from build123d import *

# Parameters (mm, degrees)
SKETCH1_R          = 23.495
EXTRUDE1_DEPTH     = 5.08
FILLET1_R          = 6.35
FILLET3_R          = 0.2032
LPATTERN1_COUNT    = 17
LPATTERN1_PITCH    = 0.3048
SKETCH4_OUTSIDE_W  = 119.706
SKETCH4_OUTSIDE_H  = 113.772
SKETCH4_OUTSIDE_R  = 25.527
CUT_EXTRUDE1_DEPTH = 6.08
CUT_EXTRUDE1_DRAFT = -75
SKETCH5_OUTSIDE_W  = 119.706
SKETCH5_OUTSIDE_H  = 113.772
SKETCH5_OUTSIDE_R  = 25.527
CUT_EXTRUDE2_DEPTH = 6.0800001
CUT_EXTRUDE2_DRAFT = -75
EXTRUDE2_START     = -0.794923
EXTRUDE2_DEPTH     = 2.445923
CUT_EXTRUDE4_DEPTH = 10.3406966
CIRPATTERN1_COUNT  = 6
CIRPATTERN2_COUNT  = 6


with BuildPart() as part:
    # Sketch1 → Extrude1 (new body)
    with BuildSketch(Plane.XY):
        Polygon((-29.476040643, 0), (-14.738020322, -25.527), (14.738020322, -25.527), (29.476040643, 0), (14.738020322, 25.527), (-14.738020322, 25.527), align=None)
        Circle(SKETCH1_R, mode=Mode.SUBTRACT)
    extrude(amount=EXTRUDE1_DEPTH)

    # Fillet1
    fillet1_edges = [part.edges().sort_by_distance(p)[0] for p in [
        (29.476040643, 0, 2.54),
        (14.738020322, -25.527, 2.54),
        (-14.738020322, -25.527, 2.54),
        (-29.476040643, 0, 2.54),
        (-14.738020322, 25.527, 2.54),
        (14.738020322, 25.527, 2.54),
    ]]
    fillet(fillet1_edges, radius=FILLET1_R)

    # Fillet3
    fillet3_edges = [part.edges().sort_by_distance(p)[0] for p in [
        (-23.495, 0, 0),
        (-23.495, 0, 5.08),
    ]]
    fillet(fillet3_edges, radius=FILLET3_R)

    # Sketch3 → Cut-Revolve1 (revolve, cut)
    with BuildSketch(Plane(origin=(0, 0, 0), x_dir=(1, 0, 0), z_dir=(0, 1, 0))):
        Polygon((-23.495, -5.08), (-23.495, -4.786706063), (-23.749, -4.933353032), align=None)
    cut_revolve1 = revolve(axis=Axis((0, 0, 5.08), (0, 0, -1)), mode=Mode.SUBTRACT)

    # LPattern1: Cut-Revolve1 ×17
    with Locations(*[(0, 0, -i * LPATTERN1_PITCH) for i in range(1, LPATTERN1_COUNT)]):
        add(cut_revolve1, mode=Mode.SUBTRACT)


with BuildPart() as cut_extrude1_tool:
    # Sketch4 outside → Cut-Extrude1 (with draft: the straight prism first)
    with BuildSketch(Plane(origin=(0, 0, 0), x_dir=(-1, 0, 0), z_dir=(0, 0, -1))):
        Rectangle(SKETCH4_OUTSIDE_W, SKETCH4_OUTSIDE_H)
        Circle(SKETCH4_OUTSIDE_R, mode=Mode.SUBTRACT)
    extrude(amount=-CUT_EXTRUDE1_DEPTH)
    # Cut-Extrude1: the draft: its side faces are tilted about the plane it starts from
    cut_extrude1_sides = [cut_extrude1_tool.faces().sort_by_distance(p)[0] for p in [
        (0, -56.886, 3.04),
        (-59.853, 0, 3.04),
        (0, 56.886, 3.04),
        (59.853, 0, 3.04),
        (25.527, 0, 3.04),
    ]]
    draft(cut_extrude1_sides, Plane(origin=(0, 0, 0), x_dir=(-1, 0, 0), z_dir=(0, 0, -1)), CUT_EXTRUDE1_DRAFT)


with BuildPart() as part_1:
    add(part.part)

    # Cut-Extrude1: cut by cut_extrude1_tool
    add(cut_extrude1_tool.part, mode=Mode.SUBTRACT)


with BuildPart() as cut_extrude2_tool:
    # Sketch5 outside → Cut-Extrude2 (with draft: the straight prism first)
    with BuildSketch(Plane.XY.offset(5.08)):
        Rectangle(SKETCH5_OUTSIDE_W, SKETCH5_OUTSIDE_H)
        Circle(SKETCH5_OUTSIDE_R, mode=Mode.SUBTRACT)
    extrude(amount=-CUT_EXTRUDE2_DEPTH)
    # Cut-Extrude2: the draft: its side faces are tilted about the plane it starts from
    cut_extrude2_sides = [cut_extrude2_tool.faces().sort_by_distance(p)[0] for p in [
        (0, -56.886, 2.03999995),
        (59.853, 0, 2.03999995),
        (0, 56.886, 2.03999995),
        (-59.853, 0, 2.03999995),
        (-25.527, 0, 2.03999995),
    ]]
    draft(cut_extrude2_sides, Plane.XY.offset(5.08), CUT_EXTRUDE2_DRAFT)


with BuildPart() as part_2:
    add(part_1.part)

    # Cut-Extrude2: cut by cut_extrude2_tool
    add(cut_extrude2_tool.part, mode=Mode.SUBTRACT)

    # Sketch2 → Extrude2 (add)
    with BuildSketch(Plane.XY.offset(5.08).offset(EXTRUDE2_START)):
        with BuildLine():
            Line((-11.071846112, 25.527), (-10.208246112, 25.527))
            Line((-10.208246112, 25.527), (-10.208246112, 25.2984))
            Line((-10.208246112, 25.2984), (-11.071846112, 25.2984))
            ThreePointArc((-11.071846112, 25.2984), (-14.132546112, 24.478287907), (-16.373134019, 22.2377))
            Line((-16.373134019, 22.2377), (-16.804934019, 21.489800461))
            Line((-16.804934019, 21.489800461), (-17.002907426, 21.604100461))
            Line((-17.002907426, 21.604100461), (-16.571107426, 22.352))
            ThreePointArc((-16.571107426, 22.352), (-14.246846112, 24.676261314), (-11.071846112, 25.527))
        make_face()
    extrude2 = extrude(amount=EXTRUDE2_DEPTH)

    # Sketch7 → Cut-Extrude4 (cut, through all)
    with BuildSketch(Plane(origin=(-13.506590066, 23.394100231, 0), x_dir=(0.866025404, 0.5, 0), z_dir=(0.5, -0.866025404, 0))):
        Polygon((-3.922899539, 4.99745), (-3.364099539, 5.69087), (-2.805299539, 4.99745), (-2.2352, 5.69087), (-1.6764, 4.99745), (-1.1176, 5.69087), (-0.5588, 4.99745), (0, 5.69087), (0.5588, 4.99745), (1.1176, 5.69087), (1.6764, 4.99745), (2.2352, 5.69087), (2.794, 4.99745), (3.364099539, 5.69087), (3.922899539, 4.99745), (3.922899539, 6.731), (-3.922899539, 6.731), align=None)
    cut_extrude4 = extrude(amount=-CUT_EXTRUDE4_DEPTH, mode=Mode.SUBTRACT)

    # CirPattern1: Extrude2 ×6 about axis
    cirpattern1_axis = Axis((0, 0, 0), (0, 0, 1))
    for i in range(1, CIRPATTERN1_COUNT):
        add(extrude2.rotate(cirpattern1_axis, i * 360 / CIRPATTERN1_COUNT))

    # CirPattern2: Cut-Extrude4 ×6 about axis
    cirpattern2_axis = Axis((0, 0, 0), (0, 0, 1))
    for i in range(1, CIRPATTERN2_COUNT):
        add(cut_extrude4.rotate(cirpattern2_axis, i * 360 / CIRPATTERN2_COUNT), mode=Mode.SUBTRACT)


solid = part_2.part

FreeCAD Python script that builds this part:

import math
import FreeCAD as App
import Part
import Sketcher

V = App.Vector
Q = App.Units.Quantity


def edges_at(feature, points):
    """Names of the edges that pass closest to the given points."""
    edges = feature.Shape.Edges
    near = lambda p: min(range(len(edges)), key=lambda i: edges[i].distToShape(Part.Vertex(*p))[0])
    return sorted({f"Edge{near(p) + 1}" for p in points})


def faces_at(feature, points):
    """Names of the faces that lie closest to the given points."""
    faces = feature.Shape.Faces
    near = lambda p: min(range(len(faces)), key=lambda i: faces[i].distToShape(Part.Vertex(*p))[0])
    return sorted({f"Face{near(p) + 1}" for p in points})


def add_polygon(sketch, points):
    """Adds a closed chain of lines whose ends are joined by coincident constraints."""
    first, n = sketch.GeometryCount, len(points)
    for a, b in zip(points, points[1:] + points[:1]):
        sketch.addGeometry(Part.LineSegment(App.Vector(*a, 0), App.Vector(*b, 0)), False)
    for i in range(n):
        sketch.addConstraint(Sketcher.Constraint("Coincident", first + i, 2, first + (i + 1) % n, 1))

doc = App.newDocument("Part")
params = doc.addObject("Spreadsheet::Sheet", "Params")
for row, (alias, value) in enumerate([
    ("sketch1_diameter", "1.85 in"),
    ("pad1_length", "0.2 in"),
    ("fillet_radius", "0.25 in"),
    ("fillet2_radius", "0.008 in"),
    ("groove_angle", "360 deg"),
    ("linearpattern_pitch", "0.012 in"),
    ("sketch3_diameter", "2.01 in"),
    ("pad2_length", "6.08 mm"),
    ("draft_angle", "75 deg"),
    ("sketch4_diameter", "2.01 in"),
    ("pad3_length", "6.08 mm"),
    ("draft2_angle", "75 deg"),
    ("sketch5_radius", "0.25 in"),
    ("sketch5_radius2", "0.241 in"),
    ("sketch5_width", "0.034 in"),
    ("sketch5_length", "0.034 in"),
    ("pad4_length", "2.445923 mm"),
], start=1):
    params.set(f"A{row}", alias)
    params.set(f"B{row}", "=" + value)
    params.setAlias(f"B{row}", alias)

body = doc.addObject("PartDesign::Body", "Body")

# Sketch on XY plane
sketch1 = body.newObject("Sketcher::SketchObject", "Sketch")
sketch1.AttachmentSupport = (doc.getObject("XY_Plane"), [""])
sketch1.MapMode = "FlatFace"
add_polygon(sketch1, [(-29.476041, 0), (-14.73802, -25.527), (14.73802, -25.527), (29.476041, 0), (14.73802, 25.527), (-14.73802, 25.527)])  # lines 0-5
sketch1.addGeometry(Part.Circle(V(0, 0, 0), V(0, 0, 1), 23.495), False)  # 6
sketch1.addConstraint([
    Sketcher.Constraint("Horizontal", 1),
    Sketcher.Constraint("Horizontal", 4),
    Sketcher.Constraint("Coincident", 6, 3, -1, 1),
    Sketcher.Constraint("Symmetric", 0, 2, 3, 2, -1, 1),
    Sketcher.Constraint("Symmetric", 2, 2, 5, 2, -1, 1),
    Sketcher.Constraint("PointOnObject", 2, 2, -1),
    Sketcher.Constraint("Parallel", 2, 5),
    Sketcher.Constraint("Vertical", 1, 2, 3, 2),
    Sketcher.Constraint("Diameter", 6, Q("1.85 in")),
    Sketcher.Constraint("Angle", 0, Q("-60 deg")),
    Sketcher.Constraint("DistanceY", 1, 2, 3, 2, Q("2.01 in")),
    Sketcher.Constraint("DistanceX", 1, 1, 1, 2, Q("29.476041 mm")),
])
sketch1.setExpression("Constraints[14]", "Params.sketch1_diameter")
pad1 = body.newObject("PartDesign::Pad", "Pad")
pad1.Profile = sketch1
pad1.setExpression("Length", "Params.pad1_length")
doc.recompute()

fillet = body.newObject("PartDesign::Fillet", "Fillet")
fillet.Base = (pad1, edges_at(pad1, [
    (29.476, 0, 2.54),
    (14.738, -25.527, 2.54),
    (-14.738, -25.527, 2.54),
    (-29.476, 0, 2.54),
    (-14.738, 25.527, 2.54),
    (14.738, 25.527, 2.54),
]))
fillet.setExpression("Radius", "Params.fillet_radius")
doc.recompute()

fillet2 = body.newObject("PartDesign::Fillet", "Fillet001")
fillet2.Base = (fillet, edges_at(fillet, [(-23.495, 0, 0), (-23.495, 0, 5.08)]))
fillet2.setExpression("Radius", "Params.fillet2_radius")

# Sketch on XZ plane
sketch2 = body.newObject("Sketcher::SketchObject", "Sketch001")
sketch2.AttachmentSupport = (doc.getObject("XZ_Plane"), [""])
sketch2.MapMode = "FlatFace"
add_polygon(sketch2, [(-23.495, 5.08), (-23.495, 4.786706), (-23.749, 4.933353)])  # lines 0-2
sketch2.addConstraint([
    Sketcher.Constraint("Vertical", 0),
    Sketcher.Constraint("Equal", 1, 2),
    Sketcher.Constraint("Angle", 1, Q("150 deg")),
    Sketcher.Constraint("DistanceY", -1, 1, 2, 2, Q("0.2 in")),
    Sketcher.Constraint("DistanceX", 1, 2, 0, 2, Q("0.01 in")),
    Sketcher.Constraint("DistanceX", 0, 2, -1, 1, Q("0.925 in")),
])
groove = body.newObject("PartDesign::Groove", "Groove")
groove.Profile = sketch2
groove.ReferenceAxis = (sketch2, ["V_Axis"])
groove.setExpression("Angle", "Params.groove_angle")
doc.recompute()

linearpattern = body.newObject("PartDesign::LinearPattern", "LinearPattern")
linearpattern.Originals = [groove]
linearpattern.Direction = (doc.getObject("Z_Axis"), [""])
linearpattern.Mode = "offset"
linearpattern.setExpression("Offset", "Params.linearpattern_pitch")
linearpattern.Occurrences = 17
linearpattern.Reversed = True
body.Tip = linearpattern
body2 = doc.addObject("PartDesign::Body", "Body001")

# Sketch on XY plane
sketch3 = body2.newObject("Sketcher::SketchObject", "Sketch002")
sketch3.AttachmentSupport = (doc.getObject("XY_Plane001"), [""])
sketch3.MapMode = "FlatFace"
add_polygon(sketch3, [(59.853, 56.886), (59.853, -56.886), (-59.853, -56.886), (-59.853, 56.886)])  # lines 0-3
sketch3.addGeometry(Part.Circle(V(0, 0, 0), V(0, 0, 1), 25.527), False)  # 4
sketch3.addConstraint([
    Sketcher.Constraint("Vertical", 0),
    Sketcher.Constraint("Horizontal", 1),
    Sketcher.Constraint("Vertical", 2),
    Sketcher.Constraint("Horizontal", 3),
    Sketcher.Constraint("Coincident", 4, 3, -1, 1),
    Sketcher.Constraint("Symmetric", 0, 2, 2, 2, -1, 1),
    Sketcher.Constraint("Diameter", 4, Q("2.01 in")),
    Sketcher.Constraint("DistanceX", 1, 2, 1, 1, Q("119.706 mm")),
    Sketcher.Constraint("DistanceY", 0, 2, 0, 1, Q("113.772 mm")),
])
sketch3.setExpression("Constraints[10]", "Params.sketch3_diameter")
pad2 = body2.newObject("PartDesign::Pad", "Pad001")
pad2.Profile = sketch3
pad2.setExpression("Length", "Params.pad2_length")
doc.recompute()

draft = body2.newObject("PartDesign::Draft", "Draft")
draft.Base = (pad2, faces_at(pad2, [
    (0, -56.886, 3.04),
    (-59.853, 0, 3.04),
    (0, 56.886, 3.04),
    (59.853, 0, 3.04),
    (25.527, 0, 3.04),
]))
draft.NeutralPlane = (doc.getObject("XY_Plane001"), [""])
draft.setExpression("Angle", "Params.draft_angle")
draft.Reversed = False
doc.recompute()

boolean = body.newObject("PartDesign::Boolean", "Boolean")
boolean.Type = "Cut"
boolean.addObjects([body2])
body3 = doc.addObject("PartDesign::Body", "Body002")

# Sketch on XY plane
sketch4 = body3.newObject("Sketcher::SketchObject", "Sketch003")
sketch4.AttachmentSupport = (doc.getObject("XY_Plane002"), [""])
sketch4.MapMode = "FlatFace"
sketch4.AttachmentOffset = App.Placement(V(0, 0, 0.2 * 25.4), App.Rotation())
add_polygon(sketch4, [(-59.853, 56.886), (-59.853, -56.886), (59.853, -56.886), (59.853, 56.886)])  # lines 0-3
sketch4.addGeometry(Part.Circle(V(0, 0, 0), V(0, 0, 1), 25.527), False)  # 4
sketch4.addConstraint([
    Sketcher.Constraint("Vertical", 0),
    Sketcher.Constraint("Horizontal", 1),
    Sketcher.Constraint("Vertical", 2),
    Sketcher.Constraint("Horizontal", 3),
    Sketcher.Constraint("Coincident", 4, 3, -1, 1),
    Sketcher.Constraint("Symmetric", 0, 2, 2, 2, -1, 1),
    Sketcher.Constraint("Diameter", 4, Q("2.01 in")),
    Sketcher.Constraint("DistanceX", 1, 1, 1, 2, Q("119.706 mm")),
    Sketcher.Constraint("DistanceY", 0, 2, 0, 1, Q("113.772 mm")),
])
sketch4.setExpression("Constraints[10]", "Params.sketch4_diameter")
pad3 = body3.newObject("PartDesign::Pad", "Pad002")
pad3.Profile = sketch4
pad3.setExpression("Length", "Params.pad3_length")
pad3.Reversed = True
doc.recompute()

datumplane = body3.newObject("PartDesign::Plane", "DatumPlane")
datumplane.AttachmentSupport = (doc.getObject("XY_Plane002"), [""])
datumplane.MapMode = "FlatFace"
datumplane.AttachmentOffset = App.Placement(V(0, 0, 0.2 * 25.4), App.Rotation())
draft2 = body3.newObject("PartDesign::Draft", "Draft001")
draft2.Base = (pad3, faces_at(pad3, [
    (0, -56.886, 2.04),
    (59.853, 0, 2.04),
    (0, 56.886, 2.04),
    (-59.853, 0, 2.04),
    (-25.527, 0, 2.04),
]))
draft2.NeutralPlane = (datumplane, [""])
draft2.setExpression("Angle", "Params.draft2_angle")
draft2.Reversed = True
doc.recompute()

boolean2 = body.newObject("PartDesign::Boolean", "Boolean001")
boolean2.Type = "Cut"
boolean2.addObjects([body3])

# Sketch on XY plane
sketch5 = body.newObject("Sketcher::SketchObject", "Sketch004")
sketch5.AttachmentSupport = (doc.getObject("XY_Plane"), [""])
sketch5.MapMode = "FlatFace"
sketch5.AttachmentOffset = App.Placement(V(0, 0, 4.285077), App.Rotation())
sketch5.addGeometry([
    Part.LineSegment(V(-10.208246, 25.527, 0), V(-11.071846, 25.527, 0)),  # 0
    Part.ArcOfCircle(Part.Circle(V(-11.071846, 19.177, 0), V(0, 0, 1), 6.35), math.radians(90), math.radians(150)),  # 1
    Part.LineSegment(V(-16.571107, 22.352, 0), V(-17.002907, 21.6041, 0)),  # 2
    Part.LineSegment(V(-17.002907, 21.6041, 0), V(-16.804934, 21.4898, 0)),  # 3
    Part.LineSegment(V(-16.804934, 21.4898, 0), V(-16.373134, 22.2377, 0)),  # 4
    Part.ArcOfCircle(Part.Circle(V(-11.071846, 19.177, 0), V(0, 0, 1), 6.1214), math.radians(90), math.radians(150)),  # 5
    Part.LineSegment(V(-11.071846, 25.2984, 0), V(-10.208246, 25.2984, 0)),  # 6
    Part.LineSegment(V(-10.208246, 25.2984, 0), V(-10.208246, 25.527, 0)),  # 7
], False)
sketch5.addConstraint([
    Sketcher.Constraint("Tangent", 0, 2, 1, 1),
    Sketcher.Constraint("Tangent", 1, 2, 2, 1),
    Sketcher.Constraint("Coincident", 2, 2, 3, 1),
    Sketcher.Constraint("Coincident", 3, 2, 4, 1),
    Sketcher.Constraint("Tangent", 4, 2, 5, 2),
    Sketcher.Constraint("Tangent", 5, 1, 6, 1),
    Sketcher.Constraint("Coincident", 6, 2, 7, 1),
    Sketcher.Constraint("Coincident", 7, 2, 0, 1),
    Sketcher.Constraint("Horizontal", 0),
    Sketcher.Constraint("Horizontal", 6),
    Sketcher.Constraint("Vertical", 7),
    Sketcher.Constraint("Coincident", 5, 3, 1, 3),
    Sketcher.Constraint("Perpendicular", 2, 3),
    Sketcher.Constraint("Perpendicular", 3, 4),
    Sketcher.Constraint("Radius", 1, Q("0.25 in")),
    Sketcher.Constraint("Angle", 2, Q("-120 deg")),
    Sketcher.Constraint("Radius", 5, Q("0.241 in")),
    Sketcher.Constraint("DistanceX", 0, 2, 0, 1, Q("0.034 in")),
    Sketcher.Constraint("DistanceY", -1, 1, 1, 2, Q("0.88 in")),
    Sketcher.Constraint("Distance", 2, Q("0.034 in")),
    Sketcher.Constraint("DistanceX", 1, 3, -1, 1, Q("11.071846 mm")),
])
sketch5.setExpression("Constraints[14]", "Params.sketch5_radius")
sketch5.setExpression("Constraints[16]", "Params.sketch5_radius2")
sketch5.setExpression("Constraints[17]", "Params.sketch5_width")
sketch5.setExpression("Constraints[19]", "Params.sketch5_length")
pad4 = body.newObject("PartDesign::Pad", "Pad003")
pad4.Profile = sketch5
pad4.setExpression("Length", "Params.pad4_length")

# Sketch on an angled plane
sketch6 = body.newObject("Sketcher::SketchObject", "Sketch005")
sketch6.Placement = App.Placement(V(-13.50659, 23.3941, 0), App.Rotation(V(0.866025404, 0.5, 0), V(0, 0, 1), V(0.5, -0.866025404, 0), "ZXY"))
add_polygon(sketch6, [(-3.9229, 4.99745), (-3.3641, 5.69087), (-2.8053, 4.99745), (-2.2352, 5.69087), (-1.6764, 4.99745), (-1.1176, 5.69087), (-0.5588, 4.99745), (0, 5.69087), (0.5588, 4.99745), (1.1176, 5.69087), (1.6764, 4.99745), (2.2352, 5.69087), (2.794, 4.99745), (3.3641, 5.69087), (3.9229, 4.99745), (3.9229, 6.731), (-3.9229, 6.731)])  # lines 0-16
sketch6.addConstraint([
    Sketcher.Constraint("Vertical", 14),
    Sketcher.Constraint("Horizontal", 15),
    Sketcher.Constraint("Vertical", 16),
    Sketcher.Constraint("Symmetric", 5, 2, 7, 2, -2),
    Sketcher.Constraint("Symmetric", 4, 2, 8, 2, -2),
    Sketcher.Constraint("Symmetric", 3, 2, 9, 2, -2),
    Sketcher.Constraint("Symmetric", 2, 2, 10, 2, -2),
    Sketcher.Constraint("Symmetric", 0, 2, 12, 2, -2),
    Sketcher.Constraint("Symmetric", 13, 2, 16, 2, -2),
    Sketcher.Constraint("PointOnObject", 6, 2, -2),
    Sketcher.Constraint("Parallel", 1, 3),
    Sketcher.Constraint("Parallel", 0, 4),
    Sketcher.Constraint("Parallel", 3, 5),
    Sketcher.Constraint("Parallel", 4, 6),
    Sketcher.Constraint("Parallel", 5, 7),
    Sketcher.Constraint("Parallel", 9, 11),
    Sketcher.Constraint("Parallel", 2, 12),
    Sketcher.Constraint("Horizontal", 0, 2, 2, 2),
    Sketcher.Constraint("Horizontal", 1, 2, 3, 2),
    Sketcher.Constraint("Horizontal", 2, 2, 4, 2),
    Sketcher.Constraint("Horizontal", 3, 2, 5, 2),
    Sketcher.Constraint("Horizontal", 4, 2, 6, 2),
    Sketcher.Constraint("Horizontal", 11, 2, 13, 2),
    Sketcher.Constraint("DistanceX", -1, 1, 11, 2, Q("0.11 in")),
    Sketcher.Constraint("DistanceY", -1, 1, 14, 2, Q("0.265 in")),
    Sketcher.Constraint("DistanceX", 15, 2, 15, 1, Q("7.845799 mm")),
    Sketcher.Constraint("DistanceY", 1, 2, 0, 2, Q("0.0273 in")),
    Sketcher.Constraint("DistanceY", 14, 1, 14, 2, Q("1.73355 mm")),
])
pocket1 = body.newObject("PartDesign::Pocket", "Pocket")
pocket1.Profile = sketch6
pocket1.Type = "ThroughAll"
doc.recompute()

polarpattern = body.newObject("PartDesign::PolarPattern", "PolarPattern")
polarpattern.Originals = [pad4]
polarpattern.Axis = (doc.getObject("Z_Axis"), [""])
polarpattern.Angle = 360
polarpattern.Occurrences = 6
body.Tip = polarpattern
doc.recompute()

polarpattern2 = body.newObject("PartDesign::PolarPattern", "PolarPattern001")
polarpattern2.Originals = [pocket1]
polarpattern2.Axis = (doc.getObject("Z_Axis"), [""])
polarpattern2.Angle = 360
polarpattern2.Occurrences = 6
body.Tip = polarpattern2

doc.recompute()
